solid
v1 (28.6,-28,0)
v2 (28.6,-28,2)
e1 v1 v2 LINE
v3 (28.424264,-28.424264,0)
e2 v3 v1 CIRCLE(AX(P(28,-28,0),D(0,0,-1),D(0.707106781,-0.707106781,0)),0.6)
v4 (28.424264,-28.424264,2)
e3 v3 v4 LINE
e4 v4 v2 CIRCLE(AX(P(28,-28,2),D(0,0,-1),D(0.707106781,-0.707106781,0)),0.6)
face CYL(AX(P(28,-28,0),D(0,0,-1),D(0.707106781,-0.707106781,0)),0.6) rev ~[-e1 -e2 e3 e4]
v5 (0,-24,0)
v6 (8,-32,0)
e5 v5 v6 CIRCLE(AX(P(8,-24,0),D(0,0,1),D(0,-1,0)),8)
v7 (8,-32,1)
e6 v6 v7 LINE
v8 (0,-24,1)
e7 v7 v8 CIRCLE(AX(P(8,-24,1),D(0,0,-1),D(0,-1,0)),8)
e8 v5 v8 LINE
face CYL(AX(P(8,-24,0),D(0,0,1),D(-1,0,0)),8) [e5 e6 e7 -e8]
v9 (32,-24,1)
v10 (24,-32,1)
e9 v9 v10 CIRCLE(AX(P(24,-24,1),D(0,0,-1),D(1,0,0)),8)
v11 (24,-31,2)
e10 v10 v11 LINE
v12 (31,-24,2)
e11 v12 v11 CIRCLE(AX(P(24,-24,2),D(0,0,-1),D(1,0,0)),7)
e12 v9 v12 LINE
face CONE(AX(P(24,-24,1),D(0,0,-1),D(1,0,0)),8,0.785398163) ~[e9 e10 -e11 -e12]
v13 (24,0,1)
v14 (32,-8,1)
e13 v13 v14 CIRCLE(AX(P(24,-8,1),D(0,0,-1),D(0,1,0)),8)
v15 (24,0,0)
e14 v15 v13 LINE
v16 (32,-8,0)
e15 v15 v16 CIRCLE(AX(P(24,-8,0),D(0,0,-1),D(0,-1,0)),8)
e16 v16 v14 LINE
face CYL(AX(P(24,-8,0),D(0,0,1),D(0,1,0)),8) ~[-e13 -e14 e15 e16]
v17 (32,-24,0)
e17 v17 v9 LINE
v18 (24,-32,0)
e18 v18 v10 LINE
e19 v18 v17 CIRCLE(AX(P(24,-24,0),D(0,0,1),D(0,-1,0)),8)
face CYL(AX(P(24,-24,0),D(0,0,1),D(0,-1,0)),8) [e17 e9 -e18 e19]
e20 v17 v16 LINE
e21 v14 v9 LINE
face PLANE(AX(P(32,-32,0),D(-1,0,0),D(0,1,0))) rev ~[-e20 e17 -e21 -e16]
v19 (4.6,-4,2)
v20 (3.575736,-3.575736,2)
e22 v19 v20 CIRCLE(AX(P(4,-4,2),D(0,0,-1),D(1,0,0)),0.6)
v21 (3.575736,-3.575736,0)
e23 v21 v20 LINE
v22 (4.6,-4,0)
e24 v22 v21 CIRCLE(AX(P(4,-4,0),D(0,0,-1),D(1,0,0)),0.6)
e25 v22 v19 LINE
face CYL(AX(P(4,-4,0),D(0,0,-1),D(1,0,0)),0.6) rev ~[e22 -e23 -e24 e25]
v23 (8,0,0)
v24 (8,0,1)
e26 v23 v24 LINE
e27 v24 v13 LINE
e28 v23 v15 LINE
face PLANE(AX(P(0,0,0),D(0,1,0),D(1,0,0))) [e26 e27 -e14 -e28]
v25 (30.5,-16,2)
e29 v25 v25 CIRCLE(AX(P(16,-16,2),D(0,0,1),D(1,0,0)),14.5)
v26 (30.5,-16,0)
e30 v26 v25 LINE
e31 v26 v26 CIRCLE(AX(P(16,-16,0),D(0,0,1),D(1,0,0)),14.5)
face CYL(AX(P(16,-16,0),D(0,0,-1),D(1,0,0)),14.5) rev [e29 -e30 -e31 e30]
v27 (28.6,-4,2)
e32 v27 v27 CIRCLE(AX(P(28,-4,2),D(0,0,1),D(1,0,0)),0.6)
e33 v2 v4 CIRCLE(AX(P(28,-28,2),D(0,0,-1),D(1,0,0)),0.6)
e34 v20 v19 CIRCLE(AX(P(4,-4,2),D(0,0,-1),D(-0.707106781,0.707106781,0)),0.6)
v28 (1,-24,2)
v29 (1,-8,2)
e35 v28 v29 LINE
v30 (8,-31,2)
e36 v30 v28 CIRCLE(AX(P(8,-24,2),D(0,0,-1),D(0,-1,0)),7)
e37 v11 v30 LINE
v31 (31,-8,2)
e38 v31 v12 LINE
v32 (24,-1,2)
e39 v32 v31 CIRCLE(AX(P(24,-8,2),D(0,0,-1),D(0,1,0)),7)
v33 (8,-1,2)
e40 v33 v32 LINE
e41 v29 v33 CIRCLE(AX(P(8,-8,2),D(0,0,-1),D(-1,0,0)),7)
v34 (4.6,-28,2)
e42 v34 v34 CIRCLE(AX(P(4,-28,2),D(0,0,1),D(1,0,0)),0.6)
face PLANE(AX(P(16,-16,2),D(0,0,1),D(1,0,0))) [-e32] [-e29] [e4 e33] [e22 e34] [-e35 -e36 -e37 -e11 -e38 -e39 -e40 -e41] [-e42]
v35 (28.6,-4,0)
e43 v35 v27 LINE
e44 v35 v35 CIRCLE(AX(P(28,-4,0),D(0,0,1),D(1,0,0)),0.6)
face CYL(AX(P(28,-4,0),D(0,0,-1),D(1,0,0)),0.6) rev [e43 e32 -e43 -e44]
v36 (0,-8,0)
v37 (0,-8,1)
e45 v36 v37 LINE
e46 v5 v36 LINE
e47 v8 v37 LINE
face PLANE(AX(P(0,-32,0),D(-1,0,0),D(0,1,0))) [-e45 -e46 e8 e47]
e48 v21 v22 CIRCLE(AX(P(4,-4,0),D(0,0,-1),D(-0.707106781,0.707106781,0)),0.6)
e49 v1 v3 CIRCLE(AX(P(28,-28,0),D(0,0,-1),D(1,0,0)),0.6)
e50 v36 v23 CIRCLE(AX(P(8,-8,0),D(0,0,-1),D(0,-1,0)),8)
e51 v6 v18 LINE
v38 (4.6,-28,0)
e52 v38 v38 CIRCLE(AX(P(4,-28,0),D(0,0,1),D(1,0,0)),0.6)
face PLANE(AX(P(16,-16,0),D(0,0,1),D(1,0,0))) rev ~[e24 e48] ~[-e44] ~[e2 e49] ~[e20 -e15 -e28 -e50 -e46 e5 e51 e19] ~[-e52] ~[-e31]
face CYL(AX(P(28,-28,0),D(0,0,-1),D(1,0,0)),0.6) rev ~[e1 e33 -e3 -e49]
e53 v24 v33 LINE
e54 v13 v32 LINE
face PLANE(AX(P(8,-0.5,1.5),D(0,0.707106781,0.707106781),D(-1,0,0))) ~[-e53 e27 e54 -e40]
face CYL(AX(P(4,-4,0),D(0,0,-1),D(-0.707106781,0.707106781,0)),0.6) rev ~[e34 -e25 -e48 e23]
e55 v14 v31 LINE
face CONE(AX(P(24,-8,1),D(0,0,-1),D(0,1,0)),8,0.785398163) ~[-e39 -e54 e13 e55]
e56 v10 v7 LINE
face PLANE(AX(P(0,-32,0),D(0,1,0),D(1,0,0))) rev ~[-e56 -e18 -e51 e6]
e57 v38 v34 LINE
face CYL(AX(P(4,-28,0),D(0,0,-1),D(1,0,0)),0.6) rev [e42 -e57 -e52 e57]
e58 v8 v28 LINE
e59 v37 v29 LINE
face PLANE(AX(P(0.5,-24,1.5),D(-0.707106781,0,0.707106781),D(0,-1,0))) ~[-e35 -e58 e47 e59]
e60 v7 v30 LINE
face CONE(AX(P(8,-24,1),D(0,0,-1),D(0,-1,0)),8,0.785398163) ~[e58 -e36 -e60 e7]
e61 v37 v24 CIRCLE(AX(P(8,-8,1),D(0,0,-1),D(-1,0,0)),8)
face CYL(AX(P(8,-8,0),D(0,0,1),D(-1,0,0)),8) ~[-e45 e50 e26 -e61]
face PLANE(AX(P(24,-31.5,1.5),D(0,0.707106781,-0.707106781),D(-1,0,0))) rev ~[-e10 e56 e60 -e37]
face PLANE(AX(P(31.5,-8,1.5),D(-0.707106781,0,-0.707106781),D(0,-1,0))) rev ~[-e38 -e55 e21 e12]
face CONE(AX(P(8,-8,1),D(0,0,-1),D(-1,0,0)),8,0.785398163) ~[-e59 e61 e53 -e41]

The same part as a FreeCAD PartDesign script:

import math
import FreeCAD as App
import Part
import Sketcher


def edges_at(feature, points):
    """Names of the edges that pass closest to the given points."""
    edges = feature.Shape.Edges
    near = lambda p: min(range(len(edges)), key=lambda i: edges[i].distToShape(Part.Vertex(*p))[0])
    return sorted({f"Edge{near(p) + 1}" for p in points})


def add_polygon(sketch, points):
    """Adds a closed chain of lines whose ends are joined by coincident constraints."""
    first, n = sketch.GeometryCount, len(points)
    for a, b in zip(points, points[1:] + points[:1]):
        sketch.addGeometry(Part.LineSegment(App.Vector(*a, 0), App.Vector(*b, 0)), False)
    for i in range(n):
        sketch.addConstraint(Sketcher.Constraint("Coincident", first + i, 2, first + (i + 1) % n, 1))

doc = App.newDocument("Part")
body = doc.addObject("PartDesign::Body", "Body")

sketch1 = body.newObject("Sketcher::SketchObject", "Sketch")
sketch1.AttachmentSupport = (doc.getObject("XY_Plane"), [""])
sketch1.MapMode = "FlatFace"
add_polygon(sketch1, [(0, 0), (0, -32), (32, -32), (32, 0)])
sketch1.addGeometry(Part.Circle(App.Vector(4, -28, 0), App.Vector(0, 0, 1), 0.6), False)
sketch1.addGeometry(Part.ArcOfCircle(Part.Circle(App.Vector(28, -28, 0), App.Vector(0, 0, 1), 0.6), math.radians(0), math.radians(315)), False)
sketch1.addGeometry(Part.ArcOfCircle(Part.Circle(App.Vector(28, -28, 0), App.Vector(0, 0, 1), 0.6), math.radians(-45), math.radians(0)), False)
sketch1.addGeometry(Part.ArcOfCircle(Part.Circle(App.Vector(4, -4, 0), App.Vector(0, 0, 1), 0.6), math.radians(0), math.radians(135)), False)
sketch1.addGeometry(Part.ArcOfCircle(Part.Circle(App.Vector(4, -4, 0), App.Vector(0, 0, 1), 0.6), math.radians(135), math.radians(360)), False)
sketch1.addGeometry(Part.Circle(App.Vector(16, -16, 0), App.Vector(0, 0, 1), 14.5), False)
sketch1.addGeometry(Part.Circle(App.Vector(28, -4, 0), App.Vector(0, 0, 1), 0.6), False)
sketch1.addConstraint(Sketcher.Constraint("Tangent", 5, 1, 6, 2))
sketch1.addConstraint(Sketcher.Constraint("Coincident", 6, 1, 5, 2))
sketch1.addConstraint(Sketcher.Constraint("Tangent", 7, 1, 8, 2))
sketch1.addConstraint(Sketcher.Constraint("Coincident", 8, 1, 7, 2))
sketch1.addConstraint(Sketcher.Constraint("Vertical", 0))
sketch1.addConstraint(Sketcher.Constraint("Horizontal", 1))
sketch1.addConstraint(Sketcher.Constraint("Vertical", 2))
sketch1.addConstraint(Sketcher.Constraint("Horizontal", 3))
sketch1.addConstraint(Sketcher.Constraint("Coincident", 3, 2, -1, 1))
sketch1.addConstraint(Sketcher.Constraint("Equal", 4, 5))
sketch1.addConstraint(Sketcher.Constraint("Equal", 6, 7))
sketch1.addConstraint(Sketcher.Constraint("Equal", 8, 10))
sketch1.addConstraint(Sketcher.Constraint("Horizontal", 4, 3, 5, 3))
sketch1.addConstraint(Sketcher.Constraint("Horizontal", 8, 3, 10, 3))
sketch1.addConstraint(Sketcher.Constraint("Horizontal", 6, 3, 5, 1))
sketch1.addConstraint(Sketcher.Constraint("Horizontal", 10, 3, 7, 1))
sketch1.addConstraint(Sketcher.Constraint("Vertical", 4, 3, 7, 3))
sketch1.addConstraint(Sketcher.Constraint("Vertical", 6, 3, 10, 3))
sketch1.addConstraint(Sketcher.Constraint("Equal", 3, 0))
sketch1.addConstraint(Sketcher.Constraint("Diameter", 9, 29.0))
sketch1.addConstraint(Sketcher.Constraint("Diameter", 4, 1.2))
sketch1.addConstraint(Sketcher.Constraint("DistanceX", 1, 1, 1, 2, 32.0))
sketch1.addConstraint(Sketcher.Constraint("DistanceX", -1, 1, 4, 3, 4.0))
sketch1.addConstraint(Sketcher.Constraint("DistanceY", 4, 3, -1, 1, 28.0))
sketch1.addConstraint(Sketcher.Constraint("DistanceX", -1, 1, 5, 3, 28.0))
sketch1.addConstraint(Sketcher.Constraint("DistanceY", 7, 3, -1, 1, 4.0))
sketch1.addConstraint(Sketcher.Constraint("DistanceX", -1, 1, 9, 3, 16.0))
sketch1.addConstraint(Sketcher.Constraint("DistanceY", 9, 3, -1, 1, 16.0))
sketch1.addConstraint(Sketcher.Constraint("DistanceX", -1, 1, 6, 1, 28.424264))
sketch1.addConstraint(Sketcher.Constraint("DistanceX", -1, 1, 8, 1, 3.575736))
pad1 = body.newObject("PartDesign::Pad", "Pad")
pad1.Profile = sketch1
pad1.Length = 2
doc.recompute()

fillet = body.newObject("PartDesign::Fillet", "Fillet")
fillet.Base = (pad1, edges_at(pad1, [
    (32, 0, 1),
    (0, 0, 1),
    (0, -32, 1),
    (32, -32, 1),
]))
fillet.Radius = 8
doc.recompute()

chamfer = body.newObject("PartDesign::Chamfer", "Chamfer")
chamfer.Base = (fillet, edges_at(fillet, [(2.343, -2.343, 2)]))
chamfer.Size = 1

doc.recompute()
